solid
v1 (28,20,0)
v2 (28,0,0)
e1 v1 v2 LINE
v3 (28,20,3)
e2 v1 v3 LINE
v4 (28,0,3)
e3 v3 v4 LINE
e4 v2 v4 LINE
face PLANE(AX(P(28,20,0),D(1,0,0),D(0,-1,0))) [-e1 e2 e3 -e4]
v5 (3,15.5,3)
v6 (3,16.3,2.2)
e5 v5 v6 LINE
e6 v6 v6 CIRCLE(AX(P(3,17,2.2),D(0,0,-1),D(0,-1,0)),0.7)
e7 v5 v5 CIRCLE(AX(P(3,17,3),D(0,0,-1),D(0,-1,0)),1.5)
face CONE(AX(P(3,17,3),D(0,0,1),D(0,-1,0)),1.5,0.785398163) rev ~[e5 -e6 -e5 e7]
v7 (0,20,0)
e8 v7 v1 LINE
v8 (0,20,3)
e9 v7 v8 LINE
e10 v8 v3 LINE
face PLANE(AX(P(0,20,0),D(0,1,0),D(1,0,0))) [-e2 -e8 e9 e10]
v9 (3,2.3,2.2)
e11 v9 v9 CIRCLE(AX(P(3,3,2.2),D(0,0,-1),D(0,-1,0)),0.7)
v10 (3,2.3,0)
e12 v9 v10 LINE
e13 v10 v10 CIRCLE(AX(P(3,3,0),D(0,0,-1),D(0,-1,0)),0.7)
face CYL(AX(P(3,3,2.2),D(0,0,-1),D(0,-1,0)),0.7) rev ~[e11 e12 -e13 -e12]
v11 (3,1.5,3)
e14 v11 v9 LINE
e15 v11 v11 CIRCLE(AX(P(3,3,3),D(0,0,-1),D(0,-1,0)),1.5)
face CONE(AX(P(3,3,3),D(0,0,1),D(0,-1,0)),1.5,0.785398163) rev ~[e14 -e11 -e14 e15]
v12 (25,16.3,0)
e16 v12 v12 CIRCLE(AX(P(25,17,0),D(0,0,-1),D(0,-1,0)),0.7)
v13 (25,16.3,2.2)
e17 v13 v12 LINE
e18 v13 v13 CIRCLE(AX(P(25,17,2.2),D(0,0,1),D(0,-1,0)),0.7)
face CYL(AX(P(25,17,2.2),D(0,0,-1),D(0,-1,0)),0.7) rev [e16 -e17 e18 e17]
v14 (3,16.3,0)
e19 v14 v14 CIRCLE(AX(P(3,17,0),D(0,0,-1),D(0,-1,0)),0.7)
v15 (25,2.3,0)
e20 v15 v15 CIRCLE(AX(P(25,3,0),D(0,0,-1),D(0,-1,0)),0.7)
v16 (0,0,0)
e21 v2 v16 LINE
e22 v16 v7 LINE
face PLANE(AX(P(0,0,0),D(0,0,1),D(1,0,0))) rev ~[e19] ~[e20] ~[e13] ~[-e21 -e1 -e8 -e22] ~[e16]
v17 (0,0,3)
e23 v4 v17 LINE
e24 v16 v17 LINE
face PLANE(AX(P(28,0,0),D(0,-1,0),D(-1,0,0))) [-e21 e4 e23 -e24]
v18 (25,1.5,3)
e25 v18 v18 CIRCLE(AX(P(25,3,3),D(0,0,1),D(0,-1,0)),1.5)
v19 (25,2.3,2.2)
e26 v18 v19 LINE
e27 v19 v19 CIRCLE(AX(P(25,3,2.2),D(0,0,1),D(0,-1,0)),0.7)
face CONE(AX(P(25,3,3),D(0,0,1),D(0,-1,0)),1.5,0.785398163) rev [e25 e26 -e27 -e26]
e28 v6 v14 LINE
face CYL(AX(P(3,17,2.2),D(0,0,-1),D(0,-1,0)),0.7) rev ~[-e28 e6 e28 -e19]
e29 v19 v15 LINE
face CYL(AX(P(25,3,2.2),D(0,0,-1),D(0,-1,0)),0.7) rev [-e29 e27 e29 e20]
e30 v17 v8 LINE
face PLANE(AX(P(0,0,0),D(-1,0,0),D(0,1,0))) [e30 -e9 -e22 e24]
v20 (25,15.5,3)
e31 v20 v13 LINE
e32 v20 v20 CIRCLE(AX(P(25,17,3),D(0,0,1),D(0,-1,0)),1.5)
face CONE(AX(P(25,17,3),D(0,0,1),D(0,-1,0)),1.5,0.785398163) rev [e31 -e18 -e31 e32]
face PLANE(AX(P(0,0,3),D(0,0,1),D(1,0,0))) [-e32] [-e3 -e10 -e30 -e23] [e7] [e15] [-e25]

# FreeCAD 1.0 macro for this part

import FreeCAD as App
import Part
import Sketcher

V = App.Vector


def add_polygon(sketch, points):
    """Adds a closed chain of lines whose ends are joined by coincident constraints."""
    first, n = sketch.GeometryCount, len(points)
    for a, b in zip(points, points[1:] + points[:1]):
        sketch.addGeometry(Part.LineSegment(App.Vector(*a, 0), App.Vector(*b, 0)), False)
    for i in range(n):
        sketch.addConstraint(Sketcher.Constraint("Coincident", first + i, 2, first + (i + 1) % n, 1))

doc = App.newDocument("Part")
body = doc.addObject("PartDesign::Body", "Body")

# Sketch on XY plane
sketch1 = body.newObject("Sketcher::SketchObject", "Sketch")
sketch1.AttachmentSupport = (doc.getObject("XY_Plane"), [""])
sketch1.MapMode = "FlatFace"
add_polygon(sketch1, [(28, 20), (0, 20), (0, 0), (28, 0)])  # lines 0-3
sketch1.addConstraint(Sketcher.Constraint("Horizontal", 0))
sketch1.addConstraint(Sketcher.Constraint("Vertical", 1))
sketch1.addConstraint(Sketcher.Constraint("Horizontal", 2))
sketch1.addConstraint(Sketcher.Constraint("Vertical", 3))
sketch1.addConstraint(Sketcher.Constraint("Coincident", 1, 2, -1, 1))
sketch1.addConstraint(Sketcher.Constraint("DistanceX", 0, 2, 0, 1, 28.0))
sketch1.addConstraint(Sketcher.Constraint("DistanceY", 1, 2, 1, 1, 20.0))
pad1 = body.newObject("PartDesign::Pad", "Pad")
pad1.Profile = sketch1
pad1.Length = 3

# Sketch on XY plane
sketch2 = body.newObject("Sketcher::SketchObject", "Sketch001")
sketch2.AttachmentSupport = (doc.getObject("XY_Plane"), [""])
sketch2.MapMode = "FlatFace"
sketch2.AttachmentOffset = App.Placement(V(0, 0, 3), App.Rotation())
sketch2.addGeometry(Part.Circle(V(3, 17, 0), V(0, 0, 1), 0.7), False)
sketch2.addGeometry(Part.Circle(V(3, 3, 0), V(0, 0, 1), 0.7), False)
sketch2.addConstraint(Sketcher.Constraint("Equal", 0, 1))
sketch2.addConstraint(Sketcher.Constraint("Vertical", 0, 3, 1, 3))
sketch2.addConstraint(Sketcher.Constraint("Diameter", 0, 1.4))
sketch2.addConstraint(Sketcher.Constraint("DistanceX", -1, 1, 0, 3, 3.0))
sketch2.addConstraint(Sketcher.Constraint("DistanceY", -1, 1, 0, 3, 17.0))
sketch2.addConstraint(Sketcher.Constraint("DistanceY", -1, 1, 1, 3, 3.0))
doc.recompute()
hole = body.newObject("PartDesign::Hole", "Hole")
hole.Profile = sketch2
hole.ThreadType = "None"
hole.Diameter = 1.4
hole.DepthType = "ThroughAll"
hole.HoleCutType = "Countersink"
hole.HoleCutDiameter = 3
hole.HoleCutCountersinkAngle = 90
doc.recompute()

datumplane = body.newObject("PartDesign::Plane", "DatumPlane")
datumplane.AttachmentSupport = (doc.getObject("YZ_Plane"), [""])
datumplane.MapMode = "FlatFace"
datumplane.AttachmentOffset = App.Placement(V(0, 0, 14), App.Rotation())
mirrored = body.newObject("PartDesign::Mirrored", "Mirrored")
mirrored.Originals = [hole]
mirrored.MirrorPlane = (datumplane, [""])
body.Tip = mirrored

doc.recompute()
